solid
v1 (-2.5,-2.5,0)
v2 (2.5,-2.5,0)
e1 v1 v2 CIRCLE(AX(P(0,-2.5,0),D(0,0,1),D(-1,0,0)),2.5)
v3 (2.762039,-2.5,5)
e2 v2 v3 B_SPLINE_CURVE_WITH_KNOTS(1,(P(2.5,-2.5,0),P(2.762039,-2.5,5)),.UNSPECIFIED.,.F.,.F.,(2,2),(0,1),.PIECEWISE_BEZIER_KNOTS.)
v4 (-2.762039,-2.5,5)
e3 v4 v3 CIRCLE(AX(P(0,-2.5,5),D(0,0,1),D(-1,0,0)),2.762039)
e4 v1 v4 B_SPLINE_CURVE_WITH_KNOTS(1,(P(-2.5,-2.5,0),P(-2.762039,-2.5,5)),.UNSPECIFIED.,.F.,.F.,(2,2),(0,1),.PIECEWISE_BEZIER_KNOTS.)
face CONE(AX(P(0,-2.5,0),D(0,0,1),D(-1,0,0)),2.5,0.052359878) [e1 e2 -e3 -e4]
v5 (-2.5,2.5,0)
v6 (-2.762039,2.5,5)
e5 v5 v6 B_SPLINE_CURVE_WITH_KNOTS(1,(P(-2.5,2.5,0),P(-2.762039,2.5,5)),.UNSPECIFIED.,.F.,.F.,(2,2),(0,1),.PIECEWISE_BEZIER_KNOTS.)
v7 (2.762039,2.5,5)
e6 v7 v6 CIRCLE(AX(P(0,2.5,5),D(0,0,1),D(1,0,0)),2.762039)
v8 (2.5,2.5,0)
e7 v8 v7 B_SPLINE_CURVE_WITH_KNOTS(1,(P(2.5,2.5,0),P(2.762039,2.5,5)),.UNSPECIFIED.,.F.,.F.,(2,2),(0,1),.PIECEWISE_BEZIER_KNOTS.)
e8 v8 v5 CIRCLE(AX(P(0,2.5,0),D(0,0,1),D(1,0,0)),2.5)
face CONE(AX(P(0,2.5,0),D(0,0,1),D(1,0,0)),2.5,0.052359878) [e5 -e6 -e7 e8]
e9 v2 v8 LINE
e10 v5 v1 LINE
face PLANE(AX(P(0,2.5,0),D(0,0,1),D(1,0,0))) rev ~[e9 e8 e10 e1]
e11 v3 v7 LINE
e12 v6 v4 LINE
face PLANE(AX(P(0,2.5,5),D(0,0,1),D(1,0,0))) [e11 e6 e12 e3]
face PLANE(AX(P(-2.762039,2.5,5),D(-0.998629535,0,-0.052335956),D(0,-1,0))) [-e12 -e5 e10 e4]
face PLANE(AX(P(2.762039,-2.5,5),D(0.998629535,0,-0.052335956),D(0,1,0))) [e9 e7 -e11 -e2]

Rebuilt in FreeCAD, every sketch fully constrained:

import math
import FreeCAD as App
import Part
import Sketcher
Q = App.Units.Quantity

doc = App.newDocument("Part")
params = doc.addObject("Spreadsheet::Sheet", "Params")
for row, (alias, value) in enumerate([
    ("sketch1_radius", "2.5 mm"),
    ("sketch1_height", "5 mm"),
    ("pad1_length", "5 mm"),
    ("pad1_taper", "3 deg"),
], start=1):
    params.set(f"A{row}", alias)
    params.set(f"B{row}", "=" + value)
    params.setAlias(f"B{row}", alias)

body = doc.addObject("PartDesign::Body", "Body")

# Sketch on XY plane
sketch1 = body.newObject("Sketcher::SketchObject", "Sketch")
sketch1.AttachmentSupport = (doc.getObject("XY_Plane"), [""])
sketch1.MapMode = "FlatFace"
sketch1.addGeometry([
    Part.ArcOfCircle(Part.Circle(App.Vector(0, 2.5, 0), App.Vector(0, 0, 1), 2.5), math.radians(0), math.radians(180)),
    Part.LineSegment(App.Vector(-2.5, 2.5, 0), App.Vector(-2.5, -2.5, 0)),
    Part.ArcOfCircle(Part.Circle(App.Vector(0, -2.5, 0), App.Vector(0, 0, 1), 2.5), math.radians(180), math.radians(360)),
    Part.LineSegment(App.Vector(2.5, -2.5, 0), App.Vector(2.5, 2.5, 0)),
], False)
sketch1.addConstraint([
    Sketcher.Constraint("Tangent", 0, 2, 1, 1),
    Sketcher.Constraint("Tangent", 1, 2, 2, 1),
    Sketcher.Constraint("Tangent", 2, 2, 3, 1),
    Sketcher.Constraint("Tangent", 3, 2, 0, 1),
    Sketcher.Constraint("Vertical", 1),
    Sketcher.Constraint("Vertical", 3),
    Sketcher.Constraint("Symmetric", 0, 3, 2, 3, -1, 1),
    Sketcher.Constraint("Radius", 0, Q("2.5 mm")),
    Sketcher.Constraint("DistanceY", 1, 2, 1, 1, Q("5 mm")),
])
sketch1.setExpression("Constraints[7]", "Params.sketch1_radius")
sketch1.setExpression("Constraints[8]", "Params.sketch1_height")
pad1 = body.newObject("PartDesign::Pad", "Pad")
pad1.Profile = sketch1
pad1.setExpression("Length", "Params.pad1_length")
pad1.setExpression("TaperAngle", "Params.pad1_taper")

doc.recompute()
